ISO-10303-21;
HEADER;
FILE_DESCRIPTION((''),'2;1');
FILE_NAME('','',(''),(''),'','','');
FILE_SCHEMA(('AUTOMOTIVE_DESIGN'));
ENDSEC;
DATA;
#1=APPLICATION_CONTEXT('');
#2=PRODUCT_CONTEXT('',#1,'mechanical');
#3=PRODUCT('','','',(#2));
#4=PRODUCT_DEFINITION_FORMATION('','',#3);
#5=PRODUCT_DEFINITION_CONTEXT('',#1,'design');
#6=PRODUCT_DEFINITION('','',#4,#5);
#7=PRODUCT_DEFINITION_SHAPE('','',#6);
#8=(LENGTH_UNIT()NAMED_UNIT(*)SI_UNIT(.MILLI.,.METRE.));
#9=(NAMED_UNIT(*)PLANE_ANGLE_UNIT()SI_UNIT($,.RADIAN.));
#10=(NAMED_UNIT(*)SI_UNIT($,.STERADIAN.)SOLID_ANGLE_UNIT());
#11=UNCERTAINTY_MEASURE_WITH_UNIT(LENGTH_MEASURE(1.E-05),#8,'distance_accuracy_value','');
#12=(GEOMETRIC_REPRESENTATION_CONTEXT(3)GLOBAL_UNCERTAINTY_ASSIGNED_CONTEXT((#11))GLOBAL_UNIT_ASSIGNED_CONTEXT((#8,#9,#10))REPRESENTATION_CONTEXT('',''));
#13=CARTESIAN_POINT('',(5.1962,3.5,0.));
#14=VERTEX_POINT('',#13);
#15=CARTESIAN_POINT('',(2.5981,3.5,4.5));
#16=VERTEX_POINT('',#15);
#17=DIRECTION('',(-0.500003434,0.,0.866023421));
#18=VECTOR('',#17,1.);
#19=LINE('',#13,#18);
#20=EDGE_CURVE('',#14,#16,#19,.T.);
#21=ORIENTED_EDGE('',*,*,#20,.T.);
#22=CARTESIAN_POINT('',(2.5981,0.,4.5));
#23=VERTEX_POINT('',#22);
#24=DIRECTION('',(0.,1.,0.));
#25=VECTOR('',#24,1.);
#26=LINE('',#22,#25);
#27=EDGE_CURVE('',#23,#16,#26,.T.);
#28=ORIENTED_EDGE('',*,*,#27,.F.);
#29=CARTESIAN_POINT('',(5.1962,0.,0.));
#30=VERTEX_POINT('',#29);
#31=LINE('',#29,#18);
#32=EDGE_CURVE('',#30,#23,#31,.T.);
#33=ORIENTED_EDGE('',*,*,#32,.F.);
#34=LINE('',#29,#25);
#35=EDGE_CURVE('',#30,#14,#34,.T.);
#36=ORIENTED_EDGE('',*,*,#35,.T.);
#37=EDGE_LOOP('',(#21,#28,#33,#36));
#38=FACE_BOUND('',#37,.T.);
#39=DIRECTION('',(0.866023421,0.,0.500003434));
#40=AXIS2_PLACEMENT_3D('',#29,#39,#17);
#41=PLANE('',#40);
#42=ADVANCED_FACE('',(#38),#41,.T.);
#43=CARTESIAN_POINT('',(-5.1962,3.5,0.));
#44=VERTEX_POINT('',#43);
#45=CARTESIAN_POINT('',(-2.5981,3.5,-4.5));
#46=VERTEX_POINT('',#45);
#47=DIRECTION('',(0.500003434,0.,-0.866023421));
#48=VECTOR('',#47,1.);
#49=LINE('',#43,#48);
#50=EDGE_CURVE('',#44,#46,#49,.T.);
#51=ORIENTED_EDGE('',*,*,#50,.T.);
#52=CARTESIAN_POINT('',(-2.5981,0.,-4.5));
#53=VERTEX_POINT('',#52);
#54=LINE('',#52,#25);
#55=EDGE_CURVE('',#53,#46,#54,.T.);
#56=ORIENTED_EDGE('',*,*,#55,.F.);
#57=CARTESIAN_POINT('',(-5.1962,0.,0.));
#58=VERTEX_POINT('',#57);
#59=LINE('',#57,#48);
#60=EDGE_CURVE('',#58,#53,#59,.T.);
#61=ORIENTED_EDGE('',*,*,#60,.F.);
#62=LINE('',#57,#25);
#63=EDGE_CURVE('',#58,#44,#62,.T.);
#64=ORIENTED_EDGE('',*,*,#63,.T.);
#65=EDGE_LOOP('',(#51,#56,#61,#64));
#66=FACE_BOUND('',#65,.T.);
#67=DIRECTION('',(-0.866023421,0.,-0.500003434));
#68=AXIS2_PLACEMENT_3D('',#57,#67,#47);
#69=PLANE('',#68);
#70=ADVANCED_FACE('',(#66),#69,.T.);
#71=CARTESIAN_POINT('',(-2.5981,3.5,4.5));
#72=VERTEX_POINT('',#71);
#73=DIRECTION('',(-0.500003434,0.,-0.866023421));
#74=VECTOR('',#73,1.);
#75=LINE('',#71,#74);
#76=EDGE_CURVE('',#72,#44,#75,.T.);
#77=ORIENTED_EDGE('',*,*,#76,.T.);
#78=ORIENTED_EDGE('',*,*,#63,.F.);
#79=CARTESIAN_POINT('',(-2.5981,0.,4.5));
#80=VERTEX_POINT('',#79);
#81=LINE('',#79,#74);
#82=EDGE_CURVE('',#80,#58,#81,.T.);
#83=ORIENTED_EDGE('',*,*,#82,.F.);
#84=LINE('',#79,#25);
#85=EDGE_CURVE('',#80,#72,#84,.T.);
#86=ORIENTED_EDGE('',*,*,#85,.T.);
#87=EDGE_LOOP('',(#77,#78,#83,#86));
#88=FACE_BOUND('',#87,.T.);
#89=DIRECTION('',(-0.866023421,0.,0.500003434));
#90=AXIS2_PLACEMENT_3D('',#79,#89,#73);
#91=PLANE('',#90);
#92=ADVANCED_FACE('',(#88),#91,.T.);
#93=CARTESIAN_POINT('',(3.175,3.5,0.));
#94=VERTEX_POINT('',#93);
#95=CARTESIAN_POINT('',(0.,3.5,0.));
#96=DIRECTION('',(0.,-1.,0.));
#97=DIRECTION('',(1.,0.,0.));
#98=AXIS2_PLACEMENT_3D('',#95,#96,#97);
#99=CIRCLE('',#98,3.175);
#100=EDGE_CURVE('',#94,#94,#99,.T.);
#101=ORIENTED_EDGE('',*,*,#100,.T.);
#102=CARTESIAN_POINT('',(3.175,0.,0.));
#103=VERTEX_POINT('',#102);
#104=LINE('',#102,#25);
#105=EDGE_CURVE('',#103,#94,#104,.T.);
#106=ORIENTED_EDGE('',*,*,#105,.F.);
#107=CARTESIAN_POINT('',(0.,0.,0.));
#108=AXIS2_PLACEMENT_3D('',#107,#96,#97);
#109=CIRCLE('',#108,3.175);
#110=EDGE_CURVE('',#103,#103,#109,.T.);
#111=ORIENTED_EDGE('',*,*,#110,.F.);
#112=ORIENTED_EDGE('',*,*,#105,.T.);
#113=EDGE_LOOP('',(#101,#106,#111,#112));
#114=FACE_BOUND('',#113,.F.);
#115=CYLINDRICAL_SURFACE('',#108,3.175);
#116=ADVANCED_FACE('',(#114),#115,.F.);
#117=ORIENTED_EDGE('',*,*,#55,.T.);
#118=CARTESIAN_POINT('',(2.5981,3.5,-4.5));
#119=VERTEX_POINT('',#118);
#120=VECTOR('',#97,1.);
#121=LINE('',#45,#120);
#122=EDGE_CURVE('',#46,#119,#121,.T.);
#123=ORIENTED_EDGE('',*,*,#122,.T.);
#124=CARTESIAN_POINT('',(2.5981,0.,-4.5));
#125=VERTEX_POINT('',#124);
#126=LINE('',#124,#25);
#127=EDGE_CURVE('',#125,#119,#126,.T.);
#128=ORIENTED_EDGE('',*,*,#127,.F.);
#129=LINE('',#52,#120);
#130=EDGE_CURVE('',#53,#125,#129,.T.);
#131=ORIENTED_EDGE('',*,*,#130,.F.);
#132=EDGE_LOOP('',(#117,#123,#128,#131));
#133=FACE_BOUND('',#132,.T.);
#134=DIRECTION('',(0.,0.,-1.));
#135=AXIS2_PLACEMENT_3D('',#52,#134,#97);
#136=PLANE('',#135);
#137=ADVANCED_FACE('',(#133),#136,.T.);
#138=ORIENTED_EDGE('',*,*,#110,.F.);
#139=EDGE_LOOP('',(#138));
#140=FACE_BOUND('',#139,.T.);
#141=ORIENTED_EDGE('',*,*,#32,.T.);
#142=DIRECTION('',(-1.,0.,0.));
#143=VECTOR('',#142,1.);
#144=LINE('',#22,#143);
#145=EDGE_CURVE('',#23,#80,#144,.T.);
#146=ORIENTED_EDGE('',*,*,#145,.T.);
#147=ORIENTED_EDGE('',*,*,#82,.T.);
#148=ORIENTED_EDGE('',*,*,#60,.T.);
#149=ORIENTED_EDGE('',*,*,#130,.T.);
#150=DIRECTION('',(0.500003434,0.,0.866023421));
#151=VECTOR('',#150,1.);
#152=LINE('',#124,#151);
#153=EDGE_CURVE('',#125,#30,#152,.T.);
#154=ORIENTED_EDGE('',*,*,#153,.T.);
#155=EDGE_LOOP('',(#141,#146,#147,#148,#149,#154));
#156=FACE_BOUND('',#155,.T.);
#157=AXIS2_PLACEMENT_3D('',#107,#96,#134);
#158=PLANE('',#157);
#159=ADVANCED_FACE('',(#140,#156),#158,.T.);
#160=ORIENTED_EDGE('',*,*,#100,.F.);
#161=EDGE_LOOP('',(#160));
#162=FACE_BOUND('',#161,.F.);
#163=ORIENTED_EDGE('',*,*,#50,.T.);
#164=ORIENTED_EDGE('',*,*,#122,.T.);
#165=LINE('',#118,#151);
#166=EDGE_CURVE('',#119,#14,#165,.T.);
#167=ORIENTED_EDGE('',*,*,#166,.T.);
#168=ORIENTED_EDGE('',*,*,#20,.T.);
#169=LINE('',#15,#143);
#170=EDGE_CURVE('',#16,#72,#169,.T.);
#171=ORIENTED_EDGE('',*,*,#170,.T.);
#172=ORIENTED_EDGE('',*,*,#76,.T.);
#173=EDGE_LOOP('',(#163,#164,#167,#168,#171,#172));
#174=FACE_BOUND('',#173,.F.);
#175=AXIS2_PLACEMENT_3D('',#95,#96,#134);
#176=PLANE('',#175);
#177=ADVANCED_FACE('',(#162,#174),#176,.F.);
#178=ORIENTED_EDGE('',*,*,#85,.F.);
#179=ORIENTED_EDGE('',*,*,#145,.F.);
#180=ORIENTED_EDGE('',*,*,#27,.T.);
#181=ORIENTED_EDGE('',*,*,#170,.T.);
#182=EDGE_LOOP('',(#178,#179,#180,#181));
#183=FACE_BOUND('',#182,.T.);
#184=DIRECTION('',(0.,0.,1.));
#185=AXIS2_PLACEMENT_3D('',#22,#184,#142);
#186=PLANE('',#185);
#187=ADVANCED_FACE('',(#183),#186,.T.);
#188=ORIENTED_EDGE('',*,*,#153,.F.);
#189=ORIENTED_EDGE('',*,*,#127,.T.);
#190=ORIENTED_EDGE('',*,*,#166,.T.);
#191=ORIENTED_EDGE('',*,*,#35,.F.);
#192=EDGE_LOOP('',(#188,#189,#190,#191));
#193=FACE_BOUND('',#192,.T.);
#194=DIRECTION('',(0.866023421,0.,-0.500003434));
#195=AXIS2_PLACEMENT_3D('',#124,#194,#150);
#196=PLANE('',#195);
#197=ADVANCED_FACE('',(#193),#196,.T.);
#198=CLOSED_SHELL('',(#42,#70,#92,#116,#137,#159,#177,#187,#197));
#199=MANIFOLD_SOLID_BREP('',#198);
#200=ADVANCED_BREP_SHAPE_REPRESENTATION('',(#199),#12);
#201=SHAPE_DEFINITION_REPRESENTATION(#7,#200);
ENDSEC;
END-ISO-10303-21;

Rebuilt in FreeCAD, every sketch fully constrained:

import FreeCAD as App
import Part
import Sketcher
Q = App.Units.Quantity


def add_polygon(sketch, points):
    """Adds a closed chain of lines whose ends are joined by coincident constraints."""
    first, n = sketch.GeometryCount, len(points)
    for a, b in zip(points, points[1:] + points[:1]):
        sketch.addGeometry(Part.LineSegment(App.Vector(*a, 0), App.Vector(*b, 0)), False)
    for i in range(n):
        sketch.addConstraint(Sketcher.Constraint("Coincident", first + i, 2, first + (i + 1) % n, 1))

doc = App.newDocument("Part")
body = doc.addObject("PartDesign::Body", "Body")

sketch1 = body.newObject("Sketcher::SketchObject", "Sketch")
sketch1.AttachmentSupport = (doc.getObject("XZ_Plane"), [""])
sketch1.MapMode = "FlatFace"
add_polygon(sketch1, [(2.6, 4.5), (-2.6, 4.5), (-5.2, 0), (-2.6, -4.5), (2.6, -4.5), (5.2, 0)])
sketch1.addGeometry(Part.Circle(App.Vector(0, 0, 0), App.Vector(0, 0, 1), 3.2), False)
sketch1.addConstraint([
    Sketcher.Constraint("Horizontal", 0),
    Sketcher.Constraint("Horizontal", 3),
    Sketcher.Constraint("Coincident", 6, 3, -1, 1),
    Sketcher.Constraint("Symmetric", 0, 2, 3, 2, -1, 1),
    Sketcher.Constraint("Symmetric", 1, 2, 4, 2, -1, 1),
    Sketcher.Constraint("PointOnObject", 1, 2, -1),
    Sketcher.Constraint("Parallel", 2, 5),
    Sketcher.Constraint("Vertical", 0, 2, 2, 2),
    Sketcher.Constraint("Diameter", 6, Q("0.25 in")),
    Sketcher.Constraint("Angle", 1, Q("-120.0002 deg")),
    Sketcher.Constraint("DistanceX", 0, 2, 0, 1, 5.1962),
    Sketcher.Constraint("Distance", 1, 5.1962),
])
pad1 = body.newObject("PartDesign::Pad", "Pad")
pad1.Profile = sketch1
pad1.Length = Q("0.1377953 in")
pad1.Reversed = True

doc.recompute()
